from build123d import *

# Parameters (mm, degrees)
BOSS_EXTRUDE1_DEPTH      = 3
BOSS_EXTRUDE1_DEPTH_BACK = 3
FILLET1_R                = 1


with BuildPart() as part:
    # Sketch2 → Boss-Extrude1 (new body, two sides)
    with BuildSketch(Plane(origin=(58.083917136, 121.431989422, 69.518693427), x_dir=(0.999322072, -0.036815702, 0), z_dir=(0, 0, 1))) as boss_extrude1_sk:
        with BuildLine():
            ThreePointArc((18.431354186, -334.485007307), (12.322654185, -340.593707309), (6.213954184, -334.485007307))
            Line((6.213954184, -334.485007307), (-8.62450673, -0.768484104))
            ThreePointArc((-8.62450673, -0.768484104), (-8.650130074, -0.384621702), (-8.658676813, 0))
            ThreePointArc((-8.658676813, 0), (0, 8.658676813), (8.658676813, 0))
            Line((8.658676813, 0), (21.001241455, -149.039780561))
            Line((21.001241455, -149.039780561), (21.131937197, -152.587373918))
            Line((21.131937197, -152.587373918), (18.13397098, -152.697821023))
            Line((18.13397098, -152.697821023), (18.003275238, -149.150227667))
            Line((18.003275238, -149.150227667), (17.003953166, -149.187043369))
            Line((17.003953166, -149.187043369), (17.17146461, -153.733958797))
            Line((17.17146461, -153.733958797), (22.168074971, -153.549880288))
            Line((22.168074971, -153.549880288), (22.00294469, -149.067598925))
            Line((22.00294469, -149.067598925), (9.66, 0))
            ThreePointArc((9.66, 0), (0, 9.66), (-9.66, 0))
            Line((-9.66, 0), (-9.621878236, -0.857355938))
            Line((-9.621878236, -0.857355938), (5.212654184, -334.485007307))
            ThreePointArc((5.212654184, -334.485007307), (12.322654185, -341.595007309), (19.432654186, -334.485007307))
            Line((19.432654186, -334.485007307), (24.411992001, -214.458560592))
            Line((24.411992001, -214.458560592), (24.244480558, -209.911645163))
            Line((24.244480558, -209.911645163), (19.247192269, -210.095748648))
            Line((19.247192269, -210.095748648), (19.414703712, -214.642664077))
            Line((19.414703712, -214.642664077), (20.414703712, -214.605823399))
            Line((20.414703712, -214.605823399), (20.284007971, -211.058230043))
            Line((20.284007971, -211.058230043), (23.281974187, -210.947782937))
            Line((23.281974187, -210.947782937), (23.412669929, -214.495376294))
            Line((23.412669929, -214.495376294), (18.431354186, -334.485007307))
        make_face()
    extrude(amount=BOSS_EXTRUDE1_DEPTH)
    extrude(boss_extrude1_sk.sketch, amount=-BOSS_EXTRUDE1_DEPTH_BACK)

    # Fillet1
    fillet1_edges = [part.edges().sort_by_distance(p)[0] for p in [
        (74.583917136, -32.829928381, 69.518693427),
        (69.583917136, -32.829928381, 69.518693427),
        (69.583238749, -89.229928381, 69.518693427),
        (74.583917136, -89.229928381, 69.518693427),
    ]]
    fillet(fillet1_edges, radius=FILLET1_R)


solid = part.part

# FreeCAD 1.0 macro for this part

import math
import FreeCAD as App
import Part
import Sketcher
from FreeCAD import Vector


def edges_at(feature, points):
    """Names of the edges that pass closest to the given points."""
    edges = feature.Shape.Edges
    near = lambda p: min(range(len(edges)), key=lambda i: edges[i].distToShape(Part.Vertex(*p))[0])
    return sorted({f"Edge{near(p) + 1}" for p in points})

doc = App.newDocument("Part")
params = doc.addObject("Spreadsheet::Sheet", "Params")
for row, (alias, value) in enumerate([
    ("sketch1_width", "3 mm"),
    ("sketch1_width2", "1 mm"),
    ("sketch1_width3", "5 mm"),
    ("sketch1_width4", "3 mm"),
    ("sketch1_radius", "9.66 mm"),
    ("pad1_length", "3 mm"),
    ("pad1_length2", "3 mm"),
    ("fillet_radius", "1 mm"),
], start=1):
    params.set(f"A{row}", alias)
    params.set(f"B{row}", "=" + value)
    params.setAlias(f"B{row}", alias)

body = doc.addObject("PartDesign::Body", "Body")

# Sketch on XY plane
sketch1 = doc.addObject("Sketcher::SketchObject", "Sketch")
body.addObject(sketch1)
sketch1.AttachmentSupport = (doc.XY_Plane, [""])
sketch1.MapMode = "FlatFace"
sketch1.AttachmentOffset = App.Placement(Vector(0, 0, 69.518693), App.Rotation())
sketch1.addGeometry([
    Part.ArcOfCircle(Part.Circle(Vector(58.083917, -213.279928, 0), Vector(0, 0, 1), 6.1087), math.radians(177.890139), math.radians(357.890139)),  # 0
    Part.LineSegment(Vector(51.979358, -213.055032, 0), Vector(49.436965, 120.981544, 0)),  # 1
    Part.ArcOfCircle(Part.Circle(Vector(58.083917, 121.431989, 0), Vector(0, 0, 1), 8.658677), math.radians(177.890139), math.radians(182.982015)),  # 2
    Part.ArcOfCircle(Part.Circle(Vector(58.083917, 121.431989, 0), Vector(0, 0, 1), 8.658677), math.radians(-2.109861), math.radians(177.890139)),  # 3
    Part.LineSegment(Vector(66.736724, 121.113214, 0), Vector(73.583917, -28.279928, 0)),  # 4
    Part.LineSegment(Vector(73.583917, -28.279928, 0), Vector(73.583917, -31.829928, 0)),  # 5
    Part.LineSegment(Vector(73.583917, -31.829928, 0), Vector(70.583917, -31.829928, 0)),  # 6
    Part.LineSegment(Vector(70.583917, -31.829928, 0), Vector(70.583917, -28.279928, 0)),  # 7
    Part.LineSegment(Vector(70.583917, -28.279928, 0), Vector(69.583917, -28.279928, 0)),  # 8
    Part.LineSegment(Vector(69.583917, -28.279928, 0), Vector(69.583917, -32.829928, 0)),  # 9
    Part.LineSegment(Vector(69.583917, -32.829928, 0), Vector(74.583917, -32.829928, 0)),  # 10
    Part.LineSegment(Vector(74.583917, -32.829928, 0), Vector(74.583917, -28.344606, 0)),  # 11
    Part.LineSegment(Vector(74.583917, -28.344606, 0), Vector(67.737368, 121.07635, 0)),  # 12
    Part.ArcOfCircle(Part.Circle(Vector(58.083917, 121.431989, 0), Vector(0, 0, 1), 9.66), math.radians(-2.109861), math.radians(177.890139)),  # 13
    Part.LineSegment(Vector(48.430466, 121.787629, 0), Vector(48.436998, 120.929451, 0)),  # 14
    Part.LineSegment(Vector(48.436998, 120.929451, 0), Vector(50.978737, -213.018169, 0)),  # 15
    Part.ArcOfCircle(Part.Circle(Vector(58.083917, -213.279928, 0), Vector(0, 0, 1), 7.11), math.radians(177.890139), math.radians(357.890139)),  # 16
    Part.LineSegment(Vector(65.189097, -213.541688, 0), Vector(74.583917, -93.779928, 0)),  # 17
    Part.LineSegment(Vector(74.583917, -93.779928, 0), Vector(74.583917, -89.229928, 0)),  # 18
    Part.LineSegment(Vector(74.583917, -89.229928, 0), Vector(69.583239, -89.229928, 0)),  # 19
    Part.LineSegment(Vector(69.583239, -89.229928, 0), Vector(69.583239, -93.779928, 0)),  # 20
    Part.LineSegment(Vector(69.583239, -93.779928, 0), Vector(70.583917, -93.779928, 0)),  # 21
    Part.LineSegment(Vector(70.583917, -93.779928, 0), Vector(70.583917, -90.229928, 0)),  # 22
    Part.LineSegment(Vector(70.583917, -90.229928, 0), Vector(73.583917, -90.229928, 0)),  # 23
    Part.LineSegment(Vector(73.583917, -90.229928, 0), Vector(73.583917, -93.779928, 0)),  # 24
    Part.LineSegment(Vector(73.583917, -93.779928, 0), Vector(64.188476, -213.504824, 0)),  # 25
], False)
sketch1.addConstraint([
    Sketcher.Constraint("Coincident", 0, 1, 1, 1),
    Sketcher.Constraint("Coincident", 1, 2, 2, 2),
    Sketcher.Constraint("Coincident", 2, 1, 3, 2),
    Sketcher.Constraint("Coincident", 3, 1, 4, 1),
    Sketcher.Constraint("Coincident", 4, 2, 5, 1),
    Sketcher.Constraint("Coincident", 5, 2, 6, 1),
    Sketcher.Constraint("Coincident", 6, 2, 7, 1),
    Sketcher.Constraint("Coincident", 7, 2, 8, 1),
    Sketcher.Constraint("Coincident", 8, 2, 9, 1),
    Sketcher.Constraint("Coincident", 9, 2, 10, 1),
    Sketcher.Constraint("Coincident", 10, 2, 11, 1),
    Sketcher.Constraint("Coincident", 11, 2, 12, 1),
    Sketcher.Constraint("Coincident", 12, 2, 13, 1),
    Sketcher.Constraint("Coincident", 13, 2, 14, 1),
    Sketcher.Constraint("Coincident", 14, 2, 15, 1),
    Sketcher.Constraint("Coincident", 15, 2, 16, 1),
    Sketcher.Constraint("Coincident", 16, 2, 17, 1),
    Sketcher.Constraint("Coincident", 17, 2, 18, 1),
    Sketcher.Constraint("Coincident", 18, 2, 19, 1),
    Sketcher.Constraint("Coincident", 19, 2, 20, 1),
    Sketcher.Constraint("Coincident", 20, 2, 21, 1),
    Sketcher.Constraint("Coincident", 21, 2, 22, 1),
    Sketcher.Constraint("Coincident", 22, 2, 23, 1),
    Sketcher.Constraint("Coincident", 23, 2, 24, 1),
    Sketcher.Constraint("Coincident", 24, 2, 25, 1),
    Sketcher.Constraint("Coincident", 25, 2, 0, 2),
    Sketcher.Constraint("Vertical", 5),
    Sketcher.Constraint("Horizontal", 6),
    Sketcher.Constraint("Vertical", 7),
    Sketcher.Constraint("Horizontal", 8),
    Sketcher.Constraint("Vertical", 9),
    Sketcher.Constraint("Horizontal", 10),
    Sketcher.Constraint("Vertical", 11),
    Sketcher.Constraint("Vertical", 18),
    Sketcher.Constraint("Horizontal", 19),
    Sketcher.Constraint("Vertical", 20),
    Sketcher.Constraint("Horizontal", 21),
    Sketcher.Constraint("Vertical", 22),
    Sketcher.Constraint("Horizontal", 23),
    Sketcher.Constraint("Vertical", 24),
    Sketcher.Constraint("Coincident", 3, 3, 2, 3),
    Sketcher.Constraint("Coincident", 13, 3, 2, 3),
    Sketcher.Constraint("Coincident", 16, 3, 0, 3),
    Sketcher.Constraint("DistanceX", 6, 2, 6, 1, 3.0),
    Sketcher.Constraint("DistanceX", 8, 2, 8, 1, 1.0),
    Sketcher.Constraint("DistanceX", 10, 1, 10, 2, 5.0),
    Sketcher.Constraint("DistanceX", 23, 1, 23, 2, 3.0),
    Sketcher.Constraint("Radius", 13, 9.66),
    Sketcher.Constraint("Radius", 16, 7.11),
    Sketcher.Constraint("DistanceY", 9, 2, 6, 2, 1.0),
    Sketcher.Constraint("DistanceX", 9, 2, 17, 2, 5.0),
    Sketcher.Constraint("DistanceX", 21, 2, 17, 2, 4.0),
    Sketcher.Constraint("DistanceY", 22, 2, 19, 2, 1.0),
    Sketcher.Constraint("DistanceY", 5, 2, 5, 1, 3.55),
    Sketcher.Constraint("DistanceY", 7, 1, 7, 2, 3.55),
    Sketcher.Constraint("DistanceY", 18, 1, 18, 2, 4.55),
    Sketcher.Constraint("DistanceY", 20, 2, 20, 1, 4.55),
    Sketcher.Constraint("DistanceY", 24, 2, 24, 1, 3.55),
    Sketcher.Constraint("Radius", 0, 6.1087),
    Sketcher.Constraint("DistanceX", 2, 3, 4, 2, 15.5),
    Sketcher.Constraint("DistanceY", 18, 2, 10, 2, 56.4),
    Sketcher.Constraint("Radius", 2, 8.658677),
    Sketcher.Constraint("DistanceX", 19, 2, 19, 1, 5.000678),
    Sketcher.Constraint("DistanceX", 13, 2, 1, 2, 1.006499),
    Sketcher.Constraint("Distance", 1, 334.046251),
    Sketcher.Constraint("Distance", 12, 149.57773),
    Sketcher.Constraint("DistanceY", 11, 1, 11, 2, 4.485322),
    Sketcher.Constraint("DistanceY", 0, 3, -1, 1, 213.279928),
    Sketcher.Constraint("DistanceY", -1, 1, 2, 3, 121.431989),
    Sketcher.Constraint("DistanceX", -1, 1, 0, 1, 51.979358),
    Sketcher.Constraint("DistanceX", -1, 1, 2, 1, 49.43111),
    Sketcher.Constraint("DistanceY", 4, 2, -1, 1, 28.279928),
    Sketcher.Constraint("DistanceX", -1, 1, 12, 2, 67.737368),
    Sketcher.Constraint("DistanceY", -1, 1, 13, 2, 121.787629),
    Sketcher.Constraint("DistanceY", -1, 1, 14, 2, 120.929451),
    Sketcher.Constraint("DistanceY", 15, 2, -1, 1, 213.018169),
    Sketcher.Constraint("DistanceX", 1, 2, 3, 1, 17.299759),
    Sketcher.Constraint("DistanceX", 13, 2, 14, 2, 0.006532),
    Sketcher.Constraint("DistanceX", 0, 3, 16, 2, 7.10518),
    Sketcher.Constraint("DistanceX", 25, 2, 16, 2, 1.000621),
])
sketch1.setExpression("Constraints[43]", "Params.sketch1_width")
sketch1.setExpression("Constraints[44]", "Params.sketch1_width2")
sketch1.setExpression("Constraints[45]", "Params.sketch1_width3")
sketch1.setExpression("Constraints[46]", "Params.sketch1_width4")
sketch1.setExpression("Constraints[47]", "Params.sketch1_radius")
pad1 = doc.addObject("PartDesign::Pad", "Pad")
body.addObject(pad1)
pad1.Profile = sketch1
pad1.Type = "TwoLengths"
pad1.setExpression("Length", "Params.pad1_length")
pad1.setExpression("Length2", "Params.pad1_length2")
doc.recompute()

fillet = doc.addObject("PartDesign::Fillet", "Fillet")
body.addObject(fillet)
fillet.Base = (pad1, edges_at(pad1, [
    (74.584, -32.83, 69.519),
    (69.584, -32.83, 69.519),
    (69.583, -89.23, 69.519),
    (74.584, -89.23, 69.519),
]))
fillet.setExpression("Radius", "Params.fillet_radius")

doc.recompute()
